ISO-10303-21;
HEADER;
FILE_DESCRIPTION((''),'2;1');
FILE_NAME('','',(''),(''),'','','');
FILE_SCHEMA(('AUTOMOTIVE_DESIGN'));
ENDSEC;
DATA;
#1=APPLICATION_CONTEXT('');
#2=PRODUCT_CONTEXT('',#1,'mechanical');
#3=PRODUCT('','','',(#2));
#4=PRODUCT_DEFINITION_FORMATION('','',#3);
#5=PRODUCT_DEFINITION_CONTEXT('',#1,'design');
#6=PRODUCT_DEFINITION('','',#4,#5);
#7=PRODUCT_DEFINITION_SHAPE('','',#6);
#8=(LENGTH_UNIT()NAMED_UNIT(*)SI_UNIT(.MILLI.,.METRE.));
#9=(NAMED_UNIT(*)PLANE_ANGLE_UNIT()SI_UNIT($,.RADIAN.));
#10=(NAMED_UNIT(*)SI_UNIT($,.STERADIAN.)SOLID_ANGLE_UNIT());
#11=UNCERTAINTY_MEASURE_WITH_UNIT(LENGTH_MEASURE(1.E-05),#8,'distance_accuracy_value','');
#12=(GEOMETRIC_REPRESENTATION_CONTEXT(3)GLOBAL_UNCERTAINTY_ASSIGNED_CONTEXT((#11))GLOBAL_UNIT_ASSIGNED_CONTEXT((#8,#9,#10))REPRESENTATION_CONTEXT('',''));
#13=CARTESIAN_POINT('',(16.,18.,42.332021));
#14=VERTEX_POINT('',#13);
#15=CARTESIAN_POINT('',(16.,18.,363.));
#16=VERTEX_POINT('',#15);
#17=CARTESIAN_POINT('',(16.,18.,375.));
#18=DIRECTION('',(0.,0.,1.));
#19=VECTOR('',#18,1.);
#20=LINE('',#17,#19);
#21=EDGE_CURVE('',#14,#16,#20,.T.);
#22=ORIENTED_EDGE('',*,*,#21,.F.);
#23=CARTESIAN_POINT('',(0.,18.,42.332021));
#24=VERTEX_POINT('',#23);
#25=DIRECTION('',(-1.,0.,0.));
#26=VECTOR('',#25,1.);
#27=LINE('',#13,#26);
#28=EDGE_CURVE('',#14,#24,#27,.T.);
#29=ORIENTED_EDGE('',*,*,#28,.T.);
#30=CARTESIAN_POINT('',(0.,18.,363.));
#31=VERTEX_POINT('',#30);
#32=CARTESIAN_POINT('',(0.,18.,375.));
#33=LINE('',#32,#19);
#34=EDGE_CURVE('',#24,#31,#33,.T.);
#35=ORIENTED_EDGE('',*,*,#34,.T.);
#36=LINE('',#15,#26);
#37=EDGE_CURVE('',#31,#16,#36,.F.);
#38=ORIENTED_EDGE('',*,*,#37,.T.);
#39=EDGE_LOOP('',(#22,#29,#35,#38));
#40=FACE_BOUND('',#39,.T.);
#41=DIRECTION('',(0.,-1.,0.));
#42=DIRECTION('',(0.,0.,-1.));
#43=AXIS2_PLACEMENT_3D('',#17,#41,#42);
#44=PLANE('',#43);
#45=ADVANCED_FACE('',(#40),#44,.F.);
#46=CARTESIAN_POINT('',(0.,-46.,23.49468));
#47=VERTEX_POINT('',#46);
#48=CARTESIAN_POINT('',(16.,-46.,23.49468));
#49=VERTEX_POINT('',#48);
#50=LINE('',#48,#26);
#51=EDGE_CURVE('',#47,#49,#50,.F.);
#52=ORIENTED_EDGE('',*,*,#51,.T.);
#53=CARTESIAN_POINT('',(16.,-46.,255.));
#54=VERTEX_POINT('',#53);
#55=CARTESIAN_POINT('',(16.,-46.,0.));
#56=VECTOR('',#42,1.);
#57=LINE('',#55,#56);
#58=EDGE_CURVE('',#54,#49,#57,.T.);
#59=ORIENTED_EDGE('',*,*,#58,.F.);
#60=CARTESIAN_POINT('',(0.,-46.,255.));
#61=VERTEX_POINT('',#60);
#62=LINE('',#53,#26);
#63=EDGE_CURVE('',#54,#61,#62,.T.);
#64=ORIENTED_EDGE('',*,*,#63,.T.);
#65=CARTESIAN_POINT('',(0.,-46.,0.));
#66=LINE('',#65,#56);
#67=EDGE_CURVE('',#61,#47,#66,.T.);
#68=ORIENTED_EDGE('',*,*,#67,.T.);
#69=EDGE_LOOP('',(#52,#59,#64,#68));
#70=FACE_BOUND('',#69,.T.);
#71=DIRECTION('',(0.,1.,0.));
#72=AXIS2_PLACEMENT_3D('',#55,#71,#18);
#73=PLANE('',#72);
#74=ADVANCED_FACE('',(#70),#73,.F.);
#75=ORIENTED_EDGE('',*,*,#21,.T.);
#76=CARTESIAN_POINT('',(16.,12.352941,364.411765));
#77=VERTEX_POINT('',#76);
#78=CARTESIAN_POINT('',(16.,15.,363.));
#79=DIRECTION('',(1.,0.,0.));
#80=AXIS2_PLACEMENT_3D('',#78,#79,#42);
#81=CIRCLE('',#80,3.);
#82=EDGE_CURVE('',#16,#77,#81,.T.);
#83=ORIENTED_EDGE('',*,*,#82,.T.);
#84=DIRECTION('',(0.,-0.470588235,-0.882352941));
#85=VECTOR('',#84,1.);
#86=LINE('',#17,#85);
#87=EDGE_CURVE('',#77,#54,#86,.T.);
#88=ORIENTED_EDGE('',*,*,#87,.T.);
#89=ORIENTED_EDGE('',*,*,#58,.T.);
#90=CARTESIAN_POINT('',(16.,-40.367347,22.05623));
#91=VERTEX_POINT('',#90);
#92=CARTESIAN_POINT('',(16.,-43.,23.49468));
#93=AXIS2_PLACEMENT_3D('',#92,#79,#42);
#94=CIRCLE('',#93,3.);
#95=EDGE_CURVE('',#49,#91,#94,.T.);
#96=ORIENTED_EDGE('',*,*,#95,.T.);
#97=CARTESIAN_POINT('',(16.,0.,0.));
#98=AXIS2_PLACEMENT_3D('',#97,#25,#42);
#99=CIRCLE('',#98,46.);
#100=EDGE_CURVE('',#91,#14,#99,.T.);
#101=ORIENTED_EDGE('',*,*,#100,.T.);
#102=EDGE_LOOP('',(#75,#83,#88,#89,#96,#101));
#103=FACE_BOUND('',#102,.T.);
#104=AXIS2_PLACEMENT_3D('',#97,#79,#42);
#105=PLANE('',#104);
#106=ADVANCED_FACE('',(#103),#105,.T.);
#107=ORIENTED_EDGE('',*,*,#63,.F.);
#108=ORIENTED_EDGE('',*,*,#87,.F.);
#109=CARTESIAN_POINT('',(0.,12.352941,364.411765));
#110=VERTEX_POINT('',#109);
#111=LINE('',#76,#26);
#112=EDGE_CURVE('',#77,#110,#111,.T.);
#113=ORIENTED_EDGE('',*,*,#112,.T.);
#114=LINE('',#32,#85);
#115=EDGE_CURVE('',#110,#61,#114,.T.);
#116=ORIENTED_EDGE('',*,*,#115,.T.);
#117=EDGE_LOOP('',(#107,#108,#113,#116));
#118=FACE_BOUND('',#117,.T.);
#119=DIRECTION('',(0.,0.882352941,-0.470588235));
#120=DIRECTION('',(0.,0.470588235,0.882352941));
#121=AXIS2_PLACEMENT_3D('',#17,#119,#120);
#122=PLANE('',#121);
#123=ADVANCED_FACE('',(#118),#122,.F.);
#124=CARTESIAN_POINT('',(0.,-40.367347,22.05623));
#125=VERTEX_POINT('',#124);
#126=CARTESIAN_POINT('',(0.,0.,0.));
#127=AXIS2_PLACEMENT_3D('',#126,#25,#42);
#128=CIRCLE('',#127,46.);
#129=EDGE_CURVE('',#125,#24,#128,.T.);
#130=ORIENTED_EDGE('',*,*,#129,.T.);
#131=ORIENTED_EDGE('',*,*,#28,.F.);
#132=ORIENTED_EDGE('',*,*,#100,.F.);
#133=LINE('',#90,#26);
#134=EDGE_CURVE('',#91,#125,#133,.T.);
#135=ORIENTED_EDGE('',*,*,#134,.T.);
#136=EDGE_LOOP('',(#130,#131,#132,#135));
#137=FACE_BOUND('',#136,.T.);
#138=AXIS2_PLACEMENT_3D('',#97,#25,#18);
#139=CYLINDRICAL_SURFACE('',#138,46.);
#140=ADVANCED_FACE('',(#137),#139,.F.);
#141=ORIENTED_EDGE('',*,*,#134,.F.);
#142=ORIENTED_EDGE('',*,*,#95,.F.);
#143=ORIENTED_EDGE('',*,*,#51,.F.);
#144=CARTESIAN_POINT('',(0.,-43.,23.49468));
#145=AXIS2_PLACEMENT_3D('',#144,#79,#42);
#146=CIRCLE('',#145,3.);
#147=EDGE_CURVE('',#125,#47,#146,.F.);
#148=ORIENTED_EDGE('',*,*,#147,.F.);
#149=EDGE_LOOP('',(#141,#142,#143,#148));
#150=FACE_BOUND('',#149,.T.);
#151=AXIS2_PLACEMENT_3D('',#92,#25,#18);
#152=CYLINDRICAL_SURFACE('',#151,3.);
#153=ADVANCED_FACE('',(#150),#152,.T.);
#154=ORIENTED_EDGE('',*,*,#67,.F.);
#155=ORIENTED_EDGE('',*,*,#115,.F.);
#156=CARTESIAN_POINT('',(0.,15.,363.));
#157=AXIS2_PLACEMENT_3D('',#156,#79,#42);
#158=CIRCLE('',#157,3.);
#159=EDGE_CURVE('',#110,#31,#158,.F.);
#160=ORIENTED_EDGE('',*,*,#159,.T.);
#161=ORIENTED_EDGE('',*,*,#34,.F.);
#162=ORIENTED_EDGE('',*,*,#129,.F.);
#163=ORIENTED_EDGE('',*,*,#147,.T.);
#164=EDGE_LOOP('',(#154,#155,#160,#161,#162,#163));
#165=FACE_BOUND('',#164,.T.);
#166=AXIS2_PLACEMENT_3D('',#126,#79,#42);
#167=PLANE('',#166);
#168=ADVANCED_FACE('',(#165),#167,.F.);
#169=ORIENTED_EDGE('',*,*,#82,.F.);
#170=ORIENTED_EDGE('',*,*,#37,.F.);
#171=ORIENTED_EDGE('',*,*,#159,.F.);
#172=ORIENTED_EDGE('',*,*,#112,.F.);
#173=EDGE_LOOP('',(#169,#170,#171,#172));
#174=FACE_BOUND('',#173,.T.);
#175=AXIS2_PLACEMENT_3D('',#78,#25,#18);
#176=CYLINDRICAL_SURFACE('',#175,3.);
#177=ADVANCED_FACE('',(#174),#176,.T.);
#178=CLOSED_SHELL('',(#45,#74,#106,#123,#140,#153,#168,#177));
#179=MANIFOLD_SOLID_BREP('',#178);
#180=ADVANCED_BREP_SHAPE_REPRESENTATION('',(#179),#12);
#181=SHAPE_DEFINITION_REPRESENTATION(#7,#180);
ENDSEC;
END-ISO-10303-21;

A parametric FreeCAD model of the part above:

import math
import FreeCAD as App
import Part
import Sketcher
Q = App.Units.Quantity


def edges_at(feature, points):
    """Names of the edges that pass closest to the given points."""
    edges = feature.Shape.Edges
    near = lambda p: min(range(len(edges)), key=lambda i: edges[i].distToShape(Part.Vertex(*p))[0])
    return sorted({f"Edge{near(p) + 1}" for p in points})

doc = App.newDocument("Part")
params = doc.addObject("Spreadsheet::Sheet", "Params")
for row, (alias, value) in enumerate([
    ("sketch1_radius", "46 mm"),
    ("sketch1_height", "255 mm"),
    ("sketch1_length", "136 mm"),
    ("pad1_length", "16 mm"),
    ("fillet_radius", "3 mm"),
], start=1):
    params.set(f"A{row}", alias)
    params.set(f"B{row}", "=" + value)
    params.setAlias(f"B{row}", alias)

body = doc.addObject("PartDesign::Body", "Body")

# Sketch on YZ plane
sketch1 = body.newObject("Sketcher::SketchObject", "Sketch")
sketch1.AttachmentSupport = (doc.getObject("YZ_Plane"), [""])
sketch1.MapMode = "FlatFace"
sketch1.addGeometry([
    Part.LineSegment(App.Vector(18, 42.332021, 0), App.Vector(18, 375, 0)),
    Part.LineSegment(App.Vector(18, 375, 0), App.Vector(-46, 255, 0)),
    Part.LineSegment(App.Vector(-46, 255, 0), App.Vector(-46, 0, 0)),
    Part.ArcOfCircle(Part.Circle(App.Vector(0, 0, 0), App.Vector(0, 0, 1), 46), math.radians(66.964316), math.radians(180)),
], False)
sketch1.addConstraint([
    Sketcher.Constraint("Coincident", 0, 2, 1, 1),
    Sketcher.Constraint("Coincident", 1, 2, 2, 1),
    Sketcher.Constraint("Tangent", 2, 2, 3, 2),
    Sketcher.Constraint("Coincident", 3, 1, 0, 1),
    Sketcher.Constraint("Vertical", 0),
    Sketcher.Constraint("Vertical", 2),
    Sketcher.Constraint("Coincident", 3, 3, -1, 1),
    Sketcher.Constraint("Radius", 3, Q("46 mm")),
    Sketcher.Constraint("DistanceY", 2, 2, 2, 1, Q("255 mm")),
    Sketcher.Constraint("Distance", 1, Q("136 mm")),
    Sketcher.Constraint("DistanceX", -1, 1, 0, 2, Q("18 mm")),
])
sketch1.setExpression("Constraints[7]", "Params.sketch1_radius")
sketch1.setExpression("Constraints[8]", "Params.sketch1_height")
sketch1.setExpression("Constraints[9]", "Params.sketch1_length")
pad1 = body.newObject("PartDesign::Pad", "Pad")
pad1.Profile = sketch1
pad1.setExpression("Length", "Params.pad1_length")
doc.recompute()

fillet = body.newObject("PartDesign::Fillet", "Fillet")
fillet.Base = (pad1, edges_at(pad1, [(8, 18, 375), (8, -46, 0)]))
fillet.setExpression("Radius", "Params.fillet_radius")

doc.recompute()
